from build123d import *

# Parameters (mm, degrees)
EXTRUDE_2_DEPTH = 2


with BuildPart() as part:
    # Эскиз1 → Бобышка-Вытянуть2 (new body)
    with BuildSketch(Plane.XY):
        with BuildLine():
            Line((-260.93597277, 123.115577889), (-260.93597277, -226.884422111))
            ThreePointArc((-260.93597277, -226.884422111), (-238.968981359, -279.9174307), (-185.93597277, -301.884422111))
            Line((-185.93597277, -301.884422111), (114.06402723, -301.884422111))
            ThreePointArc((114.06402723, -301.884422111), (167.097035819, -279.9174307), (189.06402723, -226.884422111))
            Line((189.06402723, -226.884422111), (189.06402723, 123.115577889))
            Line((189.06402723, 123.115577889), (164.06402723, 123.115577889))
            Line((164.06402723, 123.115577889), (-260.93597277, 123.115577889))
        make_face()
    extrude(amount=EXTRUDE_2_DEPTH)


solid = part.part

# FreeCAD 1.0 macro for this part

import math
import FreeCAD as App
import Part
import Sketcher
from FreeCAD import Vector
Q = App.Units.Quantity

doc = App.newDocument("Part")
body = doc.addObject("PartDesign::Body", "Body")

sketch1 = doc.addObject("Sketcher::SketchObject", "Sketch")
body.addObject(sketch1)
sketch1.AttachmentSupport = (doc.XY_Plane, [""])
sketch1.MapMode = "FlatFace"
sketch1.addGeometry(Part.LineSegment(Vector(-261, 123, 0), Vector(-261, -227, 0)), False)
sketch1.addGeometry(Part.ArcOfCircle(Part.Circle(Vector(-186, -227, 0), Vector(0, 0, 1), 75), math.radians(180), math.radians(270)), False)
sketch1.addGeometry(Part.LineSegment(Vector(-186, -302, 0), Vector(114, -302, 0)), False)
sketch1.addGeometry(Part.ArcOfCircle(Part.Circle(Vector(114, -227, 0), Vector(0, 0, 1), 75), math.radians(-90), math.radians(0)), False)
sketch1.addGeometry(Part.LineSegment(Vector(189, -227, 0), Vector(189, 123, 0)), False)
sketch1.addGeometry(Part.LineSegment(Vector(189, 123, 0), Vector(-261, 123, 0)), False)
sketch1.addConstraint(Sketcher.Constraint("Tangent", 0, 2, 1, 1))
sketch1.addConstraint(Sketcher.Constraint("Tangent", 1, 2, 2, 1))
sketch1.addConstraint(Sketcher.Constraint("Tangent", 2, 2, 3, 1))
sketch1.addConstraint(Sketcher.Constraint("Tangent", 3, 2, 4, 1))
sketch1.addConstraint(Sketcher.Constraint("Coincident", 4, 2, 5, 1))
sketch1.addConstraint(Sketcher.Constraint("Coincident", 5, 2, 0, 1))
sketch1.addConstraint(Sketcher.Constraint("Vertical", 0))
sketch1.addConstraint(Sketcher.Constraint("Horizontal", 2))
sketch1.addConstraint(Sketcher.Constraint("Vertical", 4))
sketch1.addConstraint(Sketcher.Constraint("Horizontal", 5))
sketch1.addConstraint(Sketcher.Constraint("Equal", 1, 3))
sketch1.addConstraint(Sketcher.Constraint("Radius", 1, Q("75 mm")))
sketch1.addConstraint(Sketcher.Constraint("DistanceX", 2, 1, 2, 2, Q("300 mm")))
sketch1.addConstraint(Sketcher.Constraint("DistanceY", 0, 2, 0, 1, Q("350 mm")))
sketch1.addConstraint(Sketcher.Constraint("DistanceX", 1, 3, -1, 1, Q("185.935973 mm")))
sketch1.addConstraint(Sketcher.Constraint("DistanceY", 1, 3, -1, 1, Q("226.884422 mm")))
pad1 = doc.addObject("PartDesign::Pad", "Pad")
body.addObject(pad1)
pad1.Profile = sketch1
pad1.Length = 2

doc.recompute()
